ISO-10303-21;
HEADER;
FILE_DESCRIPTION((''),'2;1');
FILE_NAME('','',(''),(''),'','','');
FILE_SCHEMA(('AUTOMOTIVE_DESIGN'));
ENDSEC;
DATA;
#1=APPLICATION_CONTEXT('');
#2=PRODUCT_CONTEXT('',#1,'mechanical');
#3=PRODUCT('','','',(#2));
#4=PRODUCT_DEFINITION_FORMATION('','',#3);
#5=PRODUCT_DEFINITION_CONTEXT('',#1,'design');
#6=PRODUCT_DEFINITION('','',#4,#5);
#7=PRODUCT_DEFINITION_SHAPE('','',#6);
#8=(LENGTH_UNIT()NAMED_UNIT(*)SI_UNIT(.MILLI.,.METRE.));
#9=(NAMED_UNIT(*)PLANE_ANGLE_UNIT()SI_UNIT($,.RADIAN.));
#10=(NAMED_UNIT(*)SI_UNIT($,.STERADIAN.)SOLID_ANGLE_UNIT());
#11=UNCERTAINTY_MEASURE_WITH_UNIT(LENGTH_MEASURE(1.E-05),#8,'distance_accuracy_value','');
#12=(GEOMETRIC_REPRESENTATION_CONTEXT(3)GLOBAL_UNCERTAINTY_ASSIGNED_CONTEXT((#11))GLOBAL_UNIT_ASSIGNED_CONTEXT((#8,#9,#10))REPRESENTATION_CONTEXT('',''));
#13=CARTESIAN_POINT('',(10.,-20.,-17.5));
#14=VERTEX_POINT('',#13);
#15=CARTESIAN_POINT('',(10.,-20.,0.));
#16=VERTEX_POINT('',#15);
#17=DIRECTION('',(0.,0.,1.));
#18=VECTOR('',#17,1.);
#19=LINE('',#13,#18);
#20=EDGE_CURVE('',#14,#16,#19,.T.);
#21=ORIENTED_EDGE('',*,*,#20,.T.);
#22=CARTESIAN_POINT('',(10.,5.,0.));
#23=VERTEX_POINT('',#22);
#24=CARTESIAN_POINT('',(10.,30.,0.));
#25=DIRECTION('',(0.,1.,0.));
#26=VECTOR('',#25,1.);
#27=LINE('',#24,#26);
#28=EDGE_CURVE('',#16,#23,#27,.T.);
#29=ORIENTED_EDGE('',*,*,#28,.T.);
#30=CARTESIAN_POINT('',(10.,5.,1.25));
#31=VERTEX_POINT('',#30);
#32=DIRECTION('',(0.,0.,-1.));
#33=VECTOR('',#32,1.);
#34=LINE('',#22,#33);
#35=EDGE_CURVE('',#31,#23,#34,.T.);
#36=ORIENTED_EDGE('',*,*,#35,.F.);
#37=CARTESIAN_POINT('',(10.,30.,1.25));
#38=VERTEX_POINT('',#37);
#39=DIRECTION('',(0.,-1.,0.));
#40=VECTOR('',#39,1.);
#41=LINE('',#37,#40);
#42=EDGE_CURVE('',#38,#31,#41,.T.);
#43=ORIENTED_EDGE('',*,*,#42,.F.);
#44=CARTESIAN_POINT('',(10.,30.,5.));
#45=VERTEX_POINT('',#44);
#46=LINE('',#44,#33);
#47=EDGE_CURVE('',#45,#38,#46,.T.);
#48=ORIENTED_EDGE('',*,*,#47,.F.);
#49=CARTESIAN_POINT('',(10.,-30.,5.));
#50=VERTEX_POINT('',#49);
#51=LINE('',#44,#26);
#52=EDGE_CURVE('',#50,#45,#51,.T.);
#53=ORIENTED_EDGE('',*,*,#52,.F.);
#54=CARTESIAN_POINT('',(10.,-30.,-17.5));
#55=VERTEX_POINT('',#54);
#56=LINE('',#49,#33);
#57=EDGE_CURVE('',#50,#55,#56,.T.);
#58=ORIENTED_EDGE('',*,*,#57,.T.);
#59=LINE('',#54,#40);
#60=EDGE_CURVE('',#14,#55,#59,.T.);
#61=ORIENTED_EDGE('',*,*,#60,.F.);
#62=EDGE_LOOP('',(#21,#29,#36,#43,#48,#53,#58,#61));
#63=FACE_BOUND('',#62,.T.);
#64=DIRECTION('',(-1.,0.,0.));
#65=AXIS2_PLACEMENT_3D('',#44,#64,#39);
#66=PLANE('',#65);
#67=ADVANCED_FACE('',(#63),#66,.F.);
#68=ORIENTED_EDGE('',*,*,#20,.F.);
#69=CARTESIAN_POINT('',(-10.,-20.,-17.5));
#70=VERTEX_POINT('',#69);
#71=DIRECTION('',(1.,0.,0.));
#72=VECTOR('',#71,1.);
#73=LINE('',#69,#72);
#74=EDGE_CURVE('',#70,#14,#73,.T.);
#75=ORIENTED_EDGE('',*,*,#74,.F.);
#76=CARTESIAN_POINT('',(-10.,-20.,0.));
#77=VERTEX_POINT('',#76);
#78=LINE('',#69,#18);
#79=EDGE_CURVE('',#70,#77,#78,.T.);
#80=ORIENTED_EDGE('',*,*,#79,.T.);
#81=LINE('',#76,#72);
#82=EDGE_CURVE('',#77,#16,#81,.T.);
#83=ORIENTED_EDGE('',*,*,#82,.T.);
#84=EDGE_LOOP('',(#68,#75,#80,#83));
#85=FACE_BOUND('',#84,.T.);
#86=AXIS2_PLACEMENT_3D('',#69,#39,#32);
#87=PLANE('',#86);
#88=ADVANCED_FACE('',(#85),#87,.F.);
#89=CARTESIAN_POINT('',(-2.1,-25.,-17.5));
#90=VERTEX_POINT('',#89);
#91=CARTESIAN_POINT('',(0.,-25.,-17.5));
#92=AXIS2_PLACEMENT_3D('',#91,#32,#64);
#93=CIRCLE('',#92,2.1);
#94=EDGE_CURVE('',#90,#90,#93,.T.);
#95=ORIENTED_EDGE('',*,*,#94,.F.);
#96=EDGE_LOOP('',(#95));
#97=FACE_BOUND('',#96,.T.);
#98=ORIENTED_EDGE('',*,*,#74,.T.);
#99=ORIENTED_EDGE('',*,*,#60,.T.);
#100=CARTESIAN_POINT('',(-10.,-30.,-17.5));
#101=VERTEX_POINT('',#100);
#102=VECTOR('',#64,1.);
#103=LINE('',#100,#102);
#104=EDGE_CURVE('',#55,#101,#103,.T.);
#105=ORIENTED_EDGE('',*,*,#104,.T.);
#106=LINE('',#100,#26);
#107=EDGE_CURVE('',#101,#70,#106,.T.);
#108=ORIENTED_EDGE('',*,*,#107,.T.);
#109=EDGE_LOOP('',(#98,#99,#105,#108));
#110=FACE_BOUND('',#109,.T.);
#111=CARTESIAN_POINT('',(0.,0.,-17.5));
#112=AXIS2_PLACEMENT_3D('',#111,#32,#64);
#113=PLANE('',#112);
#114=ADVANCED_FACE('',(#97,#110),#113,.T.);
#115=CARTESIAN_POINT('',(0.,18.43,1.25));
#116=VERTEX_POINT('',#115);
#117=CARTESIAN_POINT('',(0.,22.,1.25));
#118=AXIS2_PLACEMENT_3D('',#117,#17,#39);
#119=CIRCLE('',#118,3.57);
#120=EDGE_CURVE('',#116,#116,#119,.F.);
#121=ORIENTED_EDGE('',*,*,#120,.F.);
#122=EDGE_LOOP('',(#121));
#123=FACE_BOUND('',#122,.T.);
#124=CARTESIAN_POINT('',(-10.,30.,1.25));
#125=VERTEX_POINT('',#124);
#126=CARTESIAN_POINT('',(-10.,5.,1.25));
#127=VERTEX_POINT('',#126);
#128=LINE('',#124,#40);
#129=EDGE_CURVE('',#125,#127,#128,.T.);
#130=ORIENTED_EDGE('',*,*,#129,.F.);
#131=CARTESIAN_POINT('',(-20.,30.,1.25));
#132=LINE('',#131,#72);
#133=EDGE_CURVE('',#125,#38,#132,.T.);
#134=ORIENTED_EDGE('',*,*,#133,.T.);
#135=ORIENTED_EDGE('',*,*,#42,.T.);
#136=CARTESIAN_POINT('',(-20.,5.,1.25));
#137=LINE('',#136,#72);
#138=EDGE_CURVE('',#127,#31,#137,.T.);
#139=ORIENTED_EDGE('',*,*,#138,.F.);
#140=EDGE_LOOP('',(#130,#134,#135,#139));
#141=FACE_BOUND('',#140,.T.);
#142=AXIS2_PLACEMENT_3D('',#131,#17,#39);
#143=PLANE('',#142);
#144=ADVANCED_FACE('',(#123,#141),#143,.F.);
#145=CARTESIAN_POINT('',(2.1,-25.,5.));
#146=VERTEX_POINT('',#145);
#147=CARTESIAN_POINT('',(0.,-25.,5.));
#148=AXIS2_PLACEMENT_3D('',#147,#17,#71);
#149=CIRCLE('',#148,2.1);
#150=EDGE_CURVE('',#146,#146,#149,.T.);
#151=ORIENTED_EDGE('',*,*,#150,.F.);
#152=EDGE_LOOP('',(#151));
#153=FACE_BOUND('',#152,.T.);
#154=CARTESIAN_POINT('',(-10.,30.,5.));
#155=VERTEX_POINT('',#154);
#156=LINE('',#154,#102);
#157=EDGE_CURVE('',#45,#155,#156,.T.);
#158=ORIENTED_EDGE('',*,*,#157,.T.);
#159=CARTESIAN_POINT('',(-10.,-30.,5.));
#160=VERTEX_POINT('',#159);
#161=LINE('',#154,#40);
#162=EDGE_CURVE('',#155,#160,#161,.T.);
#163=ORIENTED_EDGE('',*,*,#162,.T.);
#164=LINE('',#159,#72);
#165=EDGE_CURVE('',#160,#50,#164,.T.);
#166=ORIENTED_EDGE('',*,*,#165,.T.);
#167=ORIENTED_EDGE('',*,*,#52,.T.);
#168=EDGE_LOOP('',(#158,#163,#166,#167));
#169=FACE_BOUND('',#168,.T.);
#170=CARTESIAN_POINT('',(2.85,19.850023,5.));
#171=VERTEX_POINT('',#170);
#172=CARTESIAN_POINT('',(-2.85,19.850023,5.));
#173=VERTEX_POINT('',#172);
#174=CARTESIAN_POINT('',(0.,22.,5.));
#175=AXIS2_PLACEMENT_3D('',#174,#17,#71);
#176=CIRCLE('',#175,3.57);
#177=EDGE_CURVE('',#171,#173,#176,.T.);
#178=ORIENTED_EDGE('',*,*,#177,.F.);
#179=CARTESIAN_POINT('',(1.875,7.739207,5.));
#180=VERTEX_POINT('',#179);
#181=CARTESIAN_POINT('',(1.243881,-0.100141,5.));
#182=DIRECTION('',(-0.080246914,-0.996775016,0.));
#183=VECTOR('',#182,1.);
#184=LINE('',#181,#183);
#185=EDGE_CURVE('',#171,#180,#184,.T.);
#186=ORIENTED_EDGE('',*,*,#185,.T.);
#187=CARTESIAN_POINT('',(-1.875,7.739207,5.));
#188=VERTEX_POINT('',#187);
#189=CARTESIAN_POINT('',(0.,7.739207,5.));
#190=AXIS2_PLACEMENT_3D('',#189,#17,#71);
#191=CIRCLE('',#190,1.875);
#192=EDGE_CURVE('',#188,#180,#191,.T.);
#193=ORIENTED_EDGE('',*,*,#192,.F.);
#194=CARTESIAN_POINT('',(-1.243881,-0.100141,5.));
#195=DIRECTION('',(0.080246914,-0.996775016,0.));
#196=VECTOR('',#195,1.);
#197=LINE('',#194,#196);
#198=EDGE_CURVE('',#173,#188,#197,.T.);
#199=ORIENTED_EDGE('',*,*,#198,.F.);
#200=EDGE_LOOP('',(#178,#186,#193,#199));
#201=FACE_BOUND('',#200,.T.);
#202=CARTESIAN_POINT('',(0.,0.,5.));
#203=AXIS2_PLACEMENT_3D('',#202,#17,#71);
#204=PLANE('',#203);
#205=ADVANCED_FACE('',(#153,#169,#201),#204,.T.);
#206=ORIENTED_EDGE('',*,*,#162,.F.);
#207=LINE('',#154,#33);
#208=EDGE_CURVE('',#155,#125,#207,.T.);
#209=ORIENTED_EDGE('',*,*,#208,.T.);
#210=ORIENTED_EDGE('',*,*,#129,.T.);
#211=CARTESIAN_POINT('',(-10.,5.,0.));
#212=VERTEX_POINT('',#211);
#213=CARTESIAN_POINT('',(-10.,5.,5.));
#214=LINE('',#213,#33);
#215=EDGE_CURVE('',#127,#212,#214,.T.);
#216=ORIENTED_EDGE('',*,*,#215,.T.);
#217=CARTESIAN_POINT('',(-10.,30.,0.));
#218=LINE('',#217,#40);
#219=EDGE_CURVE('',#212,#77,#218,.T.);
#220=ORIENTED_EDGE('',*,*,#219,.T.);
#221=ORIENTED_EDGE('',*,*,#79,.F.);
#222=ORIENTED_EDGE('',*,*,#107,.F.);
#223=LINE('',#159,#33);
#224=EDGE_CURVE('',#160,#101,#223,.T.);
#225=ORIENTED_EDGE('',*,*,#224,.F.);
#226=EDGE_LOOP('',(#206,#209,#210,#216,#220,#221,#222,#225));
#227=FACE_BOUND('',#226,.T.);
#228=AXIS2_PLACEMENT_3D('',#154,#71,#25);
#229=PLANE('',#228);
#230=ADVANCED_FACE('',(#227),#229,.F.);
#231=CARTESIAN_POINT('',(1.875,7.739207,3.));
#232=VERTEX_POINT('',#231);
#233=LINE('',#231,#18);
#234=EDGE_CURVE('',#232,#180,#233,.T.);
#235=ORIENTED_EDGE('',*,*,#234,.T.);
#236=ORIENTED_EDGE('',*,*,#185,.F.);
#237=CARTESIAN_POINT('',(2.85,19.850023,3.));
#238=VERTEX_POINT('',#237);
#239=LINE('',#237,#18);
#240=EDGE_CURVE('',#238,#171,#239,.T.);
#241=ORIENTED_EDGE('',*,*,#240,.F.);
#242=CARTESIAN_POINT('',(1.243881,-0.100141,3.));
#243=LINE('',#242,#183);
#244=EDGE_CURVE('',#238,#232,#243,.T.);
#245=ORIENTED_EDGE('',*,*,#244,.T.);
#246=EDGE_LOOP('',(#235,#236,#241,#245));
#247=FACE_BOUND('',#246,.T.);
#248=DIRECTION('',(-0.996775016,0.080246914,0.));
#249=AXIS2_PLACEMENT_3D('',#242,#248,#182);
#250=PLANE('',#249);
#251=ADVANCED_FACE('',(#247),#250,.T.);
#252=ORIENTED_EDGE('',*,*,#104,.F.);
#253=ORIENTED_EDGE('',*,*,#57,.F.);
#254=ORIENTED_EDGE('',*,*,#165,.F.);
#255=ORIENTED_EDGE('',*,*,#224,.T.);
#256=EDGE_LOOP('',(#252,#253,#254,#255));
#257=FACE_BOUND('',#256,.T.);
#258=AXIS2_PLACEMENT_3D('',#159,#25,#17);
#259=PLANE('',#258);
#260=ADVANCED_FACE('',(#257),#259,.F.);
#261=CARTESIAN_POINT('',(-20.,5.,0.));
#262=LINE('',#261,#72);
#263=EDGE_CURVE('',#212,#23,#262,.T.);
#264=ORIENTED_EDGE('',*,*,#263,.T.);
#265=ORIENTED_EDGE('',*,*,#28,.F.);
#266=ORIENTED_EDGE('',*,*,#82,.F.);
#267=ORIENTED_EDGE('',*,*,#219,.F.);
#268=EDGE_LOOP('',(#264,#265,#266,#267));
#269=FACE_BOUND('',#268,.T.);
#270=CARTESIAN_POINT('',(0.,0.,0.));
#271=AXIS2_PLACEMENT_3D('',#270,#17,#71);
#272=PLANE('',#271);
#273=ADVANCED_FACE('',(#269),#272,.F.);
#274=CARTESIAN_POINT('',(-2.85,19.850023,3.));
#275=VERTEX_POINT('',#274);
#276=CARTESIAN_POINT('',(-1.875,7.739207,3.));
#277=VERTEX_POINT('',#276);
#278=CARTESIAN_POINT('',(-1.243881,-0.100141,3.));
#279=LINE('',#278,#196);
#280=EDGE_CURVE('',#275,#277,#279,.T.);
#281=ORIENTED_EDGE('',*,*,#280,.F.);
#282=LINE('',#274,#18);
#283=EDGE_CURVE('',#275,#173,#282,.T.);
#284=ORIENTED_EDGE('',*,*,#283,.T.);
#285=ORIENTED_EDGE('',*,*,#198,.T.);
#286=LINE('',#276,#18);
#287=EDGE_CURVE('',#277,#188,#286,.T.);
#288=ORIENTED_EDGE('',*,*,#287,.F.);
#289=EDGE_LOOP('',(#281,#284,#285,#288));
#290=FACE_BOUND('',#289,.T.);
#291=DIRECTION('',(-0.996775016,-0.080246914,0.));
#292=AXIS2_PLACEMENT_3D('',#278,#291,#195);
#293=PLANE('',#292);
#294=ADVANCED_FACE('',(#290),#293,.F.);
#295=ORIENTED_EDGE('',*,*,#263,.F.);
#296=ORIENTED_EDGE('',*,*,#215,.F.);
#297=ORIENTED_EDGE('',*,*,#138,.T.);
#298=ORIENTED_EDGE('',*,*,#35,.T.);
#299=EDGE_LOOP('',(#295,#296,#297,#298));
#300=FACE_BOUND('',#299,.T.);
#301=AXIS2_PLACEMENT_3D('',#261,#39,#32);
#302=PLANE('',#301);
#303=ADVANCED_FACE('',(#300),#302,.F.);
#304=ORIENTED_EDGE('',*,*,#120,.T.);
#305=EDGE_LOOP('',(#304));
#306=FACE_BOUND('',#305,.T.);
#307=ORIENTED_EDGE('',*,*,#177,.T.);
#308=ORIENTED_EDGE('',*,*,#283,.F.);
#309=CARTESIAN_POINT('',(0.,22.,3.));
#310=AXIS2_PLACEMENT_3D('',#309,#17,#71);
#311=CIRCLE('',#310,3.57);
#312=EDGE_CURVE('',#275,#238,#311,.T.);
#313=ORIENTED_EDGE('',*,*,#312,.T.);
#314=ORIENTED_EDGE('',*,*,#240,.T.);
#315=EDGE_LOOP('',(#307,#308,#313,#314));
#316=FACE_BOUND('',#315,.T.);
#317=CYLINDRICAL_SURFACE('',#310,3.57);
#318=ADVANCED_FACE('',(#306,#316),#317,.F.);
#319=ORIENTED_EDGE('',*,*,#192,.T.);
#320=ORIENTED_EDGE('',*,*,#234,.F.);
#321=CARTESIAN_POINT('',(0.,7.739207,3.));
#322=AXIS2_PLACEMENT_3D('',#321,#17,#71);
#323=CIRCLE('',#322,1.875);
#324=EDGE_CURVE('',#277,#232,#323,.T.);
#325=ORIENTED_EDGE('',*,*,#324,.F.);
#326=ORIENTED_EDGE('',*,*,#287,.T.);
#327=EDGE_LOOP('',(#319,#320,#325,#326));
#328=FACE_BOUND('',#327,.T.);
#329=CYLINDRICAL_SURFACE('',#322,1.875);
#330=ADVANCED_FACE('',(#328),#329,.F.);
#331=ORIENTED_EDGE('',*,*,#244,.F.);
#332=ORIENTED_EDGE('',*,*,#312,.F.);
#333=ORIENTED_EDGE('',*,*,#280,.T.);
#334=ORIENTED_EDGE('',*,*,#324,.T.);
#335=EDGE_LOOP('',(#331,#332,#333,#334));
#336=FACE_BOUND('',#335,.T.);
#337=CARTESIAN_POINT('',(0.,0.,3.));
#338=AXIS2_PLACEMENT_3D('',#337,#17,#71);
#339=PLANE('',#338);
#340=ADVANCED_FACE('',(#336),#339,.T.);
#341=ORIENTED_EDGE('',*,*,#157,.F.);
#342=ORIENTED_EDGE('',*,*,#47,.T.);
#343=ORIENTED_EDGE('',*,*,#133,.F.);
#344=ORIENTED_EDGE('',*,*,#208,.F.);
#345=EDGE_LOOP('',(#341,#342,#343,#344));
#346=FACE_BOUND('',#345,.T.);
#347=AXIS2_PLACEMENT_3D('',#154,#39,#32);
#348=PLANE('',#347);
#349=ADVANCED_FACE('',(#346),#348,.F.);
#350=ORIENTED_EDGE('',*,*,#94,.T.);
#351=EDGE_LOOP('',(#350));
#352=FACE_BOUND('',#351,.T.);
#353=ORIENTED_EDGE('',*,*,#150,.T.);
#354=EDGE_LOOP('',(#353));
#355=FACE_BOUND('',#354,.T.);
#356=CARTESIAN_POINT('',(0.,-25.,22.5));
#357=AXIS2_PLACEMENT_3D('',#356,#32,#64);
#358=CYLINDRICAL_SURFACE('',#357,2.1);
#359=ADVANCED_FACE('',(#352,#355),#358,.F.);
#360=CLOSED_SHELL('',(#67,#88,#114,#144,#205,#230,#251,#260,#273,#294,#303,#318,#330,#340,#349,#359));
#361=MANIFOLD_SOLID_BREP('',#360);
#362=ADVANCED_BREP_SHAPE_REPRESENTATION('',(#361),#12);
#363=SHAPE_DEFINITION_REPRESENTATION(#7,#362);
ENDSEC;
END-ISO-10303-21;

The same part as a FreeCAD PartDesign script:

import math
import FreeCAD as App
import Part
import Sketcher


def add_polygon(sketch, points):
    """Adds a closed chain of lines whose ends are joined by coincident constraints."""
    first, n = sketch.GeometryCount, len(points)
    for a, b in zip(points, points[1:] + points[:1]):
        sketch.addGeometry(Part.LineSegment(App.Vector(*a, 0), App.Vector(*b, 0)), False)
    for i in range(n):
        sketch.addConstraint(Sketcher.Constraint("Coincident", first + i, 2, first + (i + 1) % n, 1))

doc = App.newDocument("Part")
params = doc.addObject("Spreadsheet::Sheet", "Params")
for row, (alias, value) in enumerate([
    ("sketch1_width", "20 mm"),
    ("sketch1_height", "60 mm"),
    ("pad1_length", "5 mm"),
    ("sketch2_radius", "3.57 mm"),
    ("sketch2_length", "12.15 mm"),
    ("pocket1_length", "2 mm"),
    ("sketch3_diameter", "7.14 mm"),
    ("pocket2_length", "3 mm"),
    ("sketch4_width", "20 mm"),
    ("sketch4_height", "10 mm"),
    ("pad2_length", "17.5 mm"),
    ("sketch5_diameter", "4.2 mm"),
    ("pocket3_length", "40 mm"),
    ("sketch6_width", "25 mm"),
    ("sketch6_height", "1.25 mm"),
    ("pocket4_length", "30 mm"),
], start=1):
    params.set(f"A{row}", alias)
    params.set(f"B{row}", "=" + value)
    params.setAlias(f"B{row}", alias)

body = doc.addObject("PartDesign::Body", "Body")

sketch1 = body.newObject("Sketcher::SketchObject", "Sketch")
sketch1.AttachmentSupport = (doc.getObject("XY_Plane"), [""])
sketch1.MapMode = "FlatFace"
add_polygon(sketch1, [(-10, 30), (-10, -30), (10, -30), (10, 30)])
sketch1.addConstraint(Sketcher.Constraint("Vertical", 0))
sketch1.addConstraint(Sketcher.Constraint("Horizontal", 1))
sketch1.addConstraint(Sketcher.Constraint("Vertical", 2))
sketch1.addConstraint(Sketcher.Constraint("Horizontal", 3))
sketch1.addConstraint(Sketcher.Constraint("Symmetric", 0, 2, 2, 2, -1, 1))
sketch1.addConstraint(Sketcher.Constraint("DistanceX", 1, 1, 1, 2, 20.0))
sketch1.addConstraint(Sketcher.Constraint("DistanceY", 0, 2, 0, 1, 60.0))
sketch1.setExpression("Constraints[9]", "Params.sketch1_width")
sketch1.setExpression("Constraints[10]", "Params.sketch1_height")
pad1 = body.newObject("PartDesign::Pad", "Pad")
pad1.Profile = sketch1
pad1.setExpression("Length", "Params.pad1_length")

sketch2 = body.newObject("Sketcher::SketchObject", "Sketch001")
sketch2.AttachmentSupport = (doc.getObject("XY_Plane"), [""])
sketch2.MapMode = "FlatFace"
sketch2.AttachmentOffset = App.Placement(App.Vector(0, 0, 5), App.Rotation())
sketch2.addGeometry(Part.LineSegment(App.Vector(-2.9, 19.9, 0), App.Vector(-1.9, 7.7, 0)), False)
sketch2.addGeometry(Part.ArcOfCircle(Part.Circle(App.Vector(0, 7.7, 0), App.Vector(0, 0, 1), 1.9), math.radians(180), math.radians(360)), False)
sketch2.addGeometry(Part.LineSegment(App.Vector(1.9, 7.7, 0), App.Vector(2.9, 19.9, 0)), False)
sketch2.addGeometry(Part.ArcOfCircle(Part.Circle(App.Vector(0, 22, 0), App.Vector(0, 0, 1), 3.6), math.radians(-37), math.radians(0)), False)
sketch2.addGeometry(Part.ArcOfCircle(Part.Circle(App.Vector(0, 22, 0), App.Vector(0, 0, 1), 3.6), math.radians(0), math.radians(217)), False)
sketch2.addConstraint(Sketcher.Constraint("Coincident", 0, 2, 1, 1))
sketch2.addConstraint(Sketcher.Constraint("Coincident", 1, 2, 2, 1))
sketch2.addConstraint(Sketcher.Constraint("Coincident", 2, 2, 3, 1))
sketch2.addConstraint(Sketcher.Constraint("Tangent", 3, 2, 4, 1))
sketch2.addConstraint(Sketcher.Constraint("Coincident", 4, 2, 0, 1))
sketch2.addConstraint(Sketcher.Constraint("Equal", 3, 4))
sketch2.addConstraint(Sketcher.Constraint("Symmetric", 0, 2, 1, 2, -2))
sketch2.addConstraint(Sketcher.Constraint("Symmetric", 2, 2, 4, 2, -2))
sketch2.addConstraint(Sketcher.Constraint("Horizontal", 1, 3, 0, 2))
sketch2.addConstraint(Sketcher.Constraint("Horizontal", 4, 3, 3, 2))
sketch2.addConstraint(Sketcher.Constraint("Radius", 3, 3.57))
sketch2.addConstraint(Sketcher.Constraint("DistanceY", -1, 1, 3, 3, 22.0))
sketch2.addConstraint(Sketcher.Constraint("Radius", 1, 1.875))
sketch2.addConstraint(Sketcher.Constraint("DistanceX", 4, 2, 2, 2, 5.7))
sketch2.addConstraint(Sketcher.Constraint("Distance", 0, 12.15))
sketch2.setExpression("Constraints[10]", "Params.sketch2_radius")
sketch2.setExpression("Constraints[14]", "Params.sketch2_length")
pocket1 = body.newObject("PartDesign::Pocket", "Pocket")
pocket1.Profile = sketch2
pocket1.setExpression("Length", "Params.pocket1_length")

sketch3 = body.newObject("Sketcher::SketchObject", "Sketch002")
sketch3.AttachmentSupport = (doc.getObject("XY_Plane"), [""])
sketch3.MapMode = "FlatFace"
sketch3.AttachmentOffset = App.Placement(App.Vector(0, 0, 3), App.Rotation())
sketch3.addGeometry(Part.Circle(App.Vector(0, 22, 0), App.Vector(0, 0, 1), 3.6), False)
sketch3.addConstraint(Sketcher.Constraint("PointOnObject", 0, 3, -2))
sketch3.addConstraint(Sketcher.Constraint("Diameter", 0, 7.14))
sketch3.addConstraint(Sketcher.Constraint("DistanceY", -1, 1, 0, 3, 22.0))
sketch3.setExpression("Constraints[1]", "Params.sketch3_diameter")
pocket2 = body.newObject("PartDesign::Pocket", "Pocket001")
pocket2.Profile = sketch3
pocket2.setExpression("Length", "Params.pocket2_length")

sketch4 = body.newObject("Sketcher::SketchObject", "Sketch003")
sketch4.AttachmentSupport = (doc.getObject("XY_Plane"), [""])
sketch4.MapMode = "FlatFace"
add_polygon(sketch4, [(10, -20), (10, -30), (-10, -30), (-10, -20)])
sketch4.addConstraint(Sketcher.Constraint("Vertical", 0))
sketch4.addConstraint(Sketcher.Constraint("Horizontal", 1))
sketch4.addConstraint(Sketcher.Constraint("Vertical", 2))
sketch4.addConstraint(Sketcher.Constraint("Horizontal", 3))
sketch4.addConstraint(Sketcher.Constraint("DistanceX", 1, 2, 1, 1, 20.0))
sketch4.addConstraint(Sketcher.Constraint("DistanceY", 0, 2, 0, 1, 10.0))
sketch4.addConstraint(Sketcher.Constraint("DistanceX", -1, 1, 0, 2, 10.0))
sketch4.addConstraint(Sketcher.Constraint("DistanceY", 0, 2, -1, 1, 30.0))
sketch4.setExpression("Constraints[8]", "Params.sketch4_width")
sketch4.setExpression("Constraints[9]", "Params.sketch4_height")
pad2 = body.newObject("PartDesign::Pad", "Pad001")
pad2.Profile = sketch4
pad2.setExpression("Length", "Params.pad2_length")
pad2.Reversed = True

sketch5 = body.newObject("Sketcher::SketchObject", "Sketch004")
sketch5.AttachmentSupport = (doc.getObject("XY_Plane"), [""])
sketch5.MapMode = "FlatFace"
sketch5.AttachmentOffset = App.Placement(App.Vector(0, 0, -17.5), App.Rotation())
sketch5.addGeometry(Part.Circle(App.Vector(0, -25, 0), App.Vector(0, 0, 1), 2.1), False)
sketch5.addConstraint(Sketcher.Constraint("PointOnObject", 0, 3, -2))
sketch5.addConstraint(Sketcher.Constraint("Diameter", 0, 4.2))
sketch5.addConstraint(Sketcher.Constraint("DistanceY", 0, 3, -1, 1, 25.0))
sketch5.setExpression("Constraints[1]", "Params.sketch5_diameter")
pocket3 = body.newObject("PartDesign::Pocket", "Pocket002")
pocket3.Profile = sketch5
pocket3.setExpression("Length", "Params.pocket3_length")
pocket3.Reversed = True

sketch6 = body.newObject("Sketcher::SketchObject", "Sketch005")
sketch6.AttachmentSupport = (doc.getObject("YZ_Plane"), [""])
sketch6.MapMode = "FlatFace"
sketch6.AttachmentOffset = App.Placement(App.Vector(0, 0, 10), App.Rotation())
add_polygon(sketch6, [(30, 1.2), (5, 1.2), (5, 0), (30, 0)])
sketch6.addConstraint(Sketcher.Constraint("Horizontal", 0))
sketch6.addConstraint(Sketcher.Constraint("Vertical", 1))
sketch6.addConstraint(Sketcher.Constraint("Horizontal", 2))
sketch6.addConstraint(Sketcher.Constraint("Vertical", 3))
sketch6.addConstraint(Sketcher.Constraint("PointOnObject", 1, 2, -1))
sketch6.addConstraint(Sketcher.Constraint("DistanceX", 0, 2, 0, 1, 25.0))
sketch6.addConstraint(Sketcher.Constraint("DistanceX", -1, 1, 0, 2, 5.0))
sketch6.addConstraint(Sketcher.Constraint("DistanceY", 1, 2, 1, 1, 1.25))
sketch6.setExpression("Constraints[9]", "Params.sketch6_width")
sketch6.setExpression("Constraints[11]", "Params.sketch6_height")
pocket4 = body.newObject("PartDesign::Pocket", "Pocket003")
pocket4.Profile = sketch6
pocket4.setExpression("Length", "Params.pocket4_length")

doc.recompute()
